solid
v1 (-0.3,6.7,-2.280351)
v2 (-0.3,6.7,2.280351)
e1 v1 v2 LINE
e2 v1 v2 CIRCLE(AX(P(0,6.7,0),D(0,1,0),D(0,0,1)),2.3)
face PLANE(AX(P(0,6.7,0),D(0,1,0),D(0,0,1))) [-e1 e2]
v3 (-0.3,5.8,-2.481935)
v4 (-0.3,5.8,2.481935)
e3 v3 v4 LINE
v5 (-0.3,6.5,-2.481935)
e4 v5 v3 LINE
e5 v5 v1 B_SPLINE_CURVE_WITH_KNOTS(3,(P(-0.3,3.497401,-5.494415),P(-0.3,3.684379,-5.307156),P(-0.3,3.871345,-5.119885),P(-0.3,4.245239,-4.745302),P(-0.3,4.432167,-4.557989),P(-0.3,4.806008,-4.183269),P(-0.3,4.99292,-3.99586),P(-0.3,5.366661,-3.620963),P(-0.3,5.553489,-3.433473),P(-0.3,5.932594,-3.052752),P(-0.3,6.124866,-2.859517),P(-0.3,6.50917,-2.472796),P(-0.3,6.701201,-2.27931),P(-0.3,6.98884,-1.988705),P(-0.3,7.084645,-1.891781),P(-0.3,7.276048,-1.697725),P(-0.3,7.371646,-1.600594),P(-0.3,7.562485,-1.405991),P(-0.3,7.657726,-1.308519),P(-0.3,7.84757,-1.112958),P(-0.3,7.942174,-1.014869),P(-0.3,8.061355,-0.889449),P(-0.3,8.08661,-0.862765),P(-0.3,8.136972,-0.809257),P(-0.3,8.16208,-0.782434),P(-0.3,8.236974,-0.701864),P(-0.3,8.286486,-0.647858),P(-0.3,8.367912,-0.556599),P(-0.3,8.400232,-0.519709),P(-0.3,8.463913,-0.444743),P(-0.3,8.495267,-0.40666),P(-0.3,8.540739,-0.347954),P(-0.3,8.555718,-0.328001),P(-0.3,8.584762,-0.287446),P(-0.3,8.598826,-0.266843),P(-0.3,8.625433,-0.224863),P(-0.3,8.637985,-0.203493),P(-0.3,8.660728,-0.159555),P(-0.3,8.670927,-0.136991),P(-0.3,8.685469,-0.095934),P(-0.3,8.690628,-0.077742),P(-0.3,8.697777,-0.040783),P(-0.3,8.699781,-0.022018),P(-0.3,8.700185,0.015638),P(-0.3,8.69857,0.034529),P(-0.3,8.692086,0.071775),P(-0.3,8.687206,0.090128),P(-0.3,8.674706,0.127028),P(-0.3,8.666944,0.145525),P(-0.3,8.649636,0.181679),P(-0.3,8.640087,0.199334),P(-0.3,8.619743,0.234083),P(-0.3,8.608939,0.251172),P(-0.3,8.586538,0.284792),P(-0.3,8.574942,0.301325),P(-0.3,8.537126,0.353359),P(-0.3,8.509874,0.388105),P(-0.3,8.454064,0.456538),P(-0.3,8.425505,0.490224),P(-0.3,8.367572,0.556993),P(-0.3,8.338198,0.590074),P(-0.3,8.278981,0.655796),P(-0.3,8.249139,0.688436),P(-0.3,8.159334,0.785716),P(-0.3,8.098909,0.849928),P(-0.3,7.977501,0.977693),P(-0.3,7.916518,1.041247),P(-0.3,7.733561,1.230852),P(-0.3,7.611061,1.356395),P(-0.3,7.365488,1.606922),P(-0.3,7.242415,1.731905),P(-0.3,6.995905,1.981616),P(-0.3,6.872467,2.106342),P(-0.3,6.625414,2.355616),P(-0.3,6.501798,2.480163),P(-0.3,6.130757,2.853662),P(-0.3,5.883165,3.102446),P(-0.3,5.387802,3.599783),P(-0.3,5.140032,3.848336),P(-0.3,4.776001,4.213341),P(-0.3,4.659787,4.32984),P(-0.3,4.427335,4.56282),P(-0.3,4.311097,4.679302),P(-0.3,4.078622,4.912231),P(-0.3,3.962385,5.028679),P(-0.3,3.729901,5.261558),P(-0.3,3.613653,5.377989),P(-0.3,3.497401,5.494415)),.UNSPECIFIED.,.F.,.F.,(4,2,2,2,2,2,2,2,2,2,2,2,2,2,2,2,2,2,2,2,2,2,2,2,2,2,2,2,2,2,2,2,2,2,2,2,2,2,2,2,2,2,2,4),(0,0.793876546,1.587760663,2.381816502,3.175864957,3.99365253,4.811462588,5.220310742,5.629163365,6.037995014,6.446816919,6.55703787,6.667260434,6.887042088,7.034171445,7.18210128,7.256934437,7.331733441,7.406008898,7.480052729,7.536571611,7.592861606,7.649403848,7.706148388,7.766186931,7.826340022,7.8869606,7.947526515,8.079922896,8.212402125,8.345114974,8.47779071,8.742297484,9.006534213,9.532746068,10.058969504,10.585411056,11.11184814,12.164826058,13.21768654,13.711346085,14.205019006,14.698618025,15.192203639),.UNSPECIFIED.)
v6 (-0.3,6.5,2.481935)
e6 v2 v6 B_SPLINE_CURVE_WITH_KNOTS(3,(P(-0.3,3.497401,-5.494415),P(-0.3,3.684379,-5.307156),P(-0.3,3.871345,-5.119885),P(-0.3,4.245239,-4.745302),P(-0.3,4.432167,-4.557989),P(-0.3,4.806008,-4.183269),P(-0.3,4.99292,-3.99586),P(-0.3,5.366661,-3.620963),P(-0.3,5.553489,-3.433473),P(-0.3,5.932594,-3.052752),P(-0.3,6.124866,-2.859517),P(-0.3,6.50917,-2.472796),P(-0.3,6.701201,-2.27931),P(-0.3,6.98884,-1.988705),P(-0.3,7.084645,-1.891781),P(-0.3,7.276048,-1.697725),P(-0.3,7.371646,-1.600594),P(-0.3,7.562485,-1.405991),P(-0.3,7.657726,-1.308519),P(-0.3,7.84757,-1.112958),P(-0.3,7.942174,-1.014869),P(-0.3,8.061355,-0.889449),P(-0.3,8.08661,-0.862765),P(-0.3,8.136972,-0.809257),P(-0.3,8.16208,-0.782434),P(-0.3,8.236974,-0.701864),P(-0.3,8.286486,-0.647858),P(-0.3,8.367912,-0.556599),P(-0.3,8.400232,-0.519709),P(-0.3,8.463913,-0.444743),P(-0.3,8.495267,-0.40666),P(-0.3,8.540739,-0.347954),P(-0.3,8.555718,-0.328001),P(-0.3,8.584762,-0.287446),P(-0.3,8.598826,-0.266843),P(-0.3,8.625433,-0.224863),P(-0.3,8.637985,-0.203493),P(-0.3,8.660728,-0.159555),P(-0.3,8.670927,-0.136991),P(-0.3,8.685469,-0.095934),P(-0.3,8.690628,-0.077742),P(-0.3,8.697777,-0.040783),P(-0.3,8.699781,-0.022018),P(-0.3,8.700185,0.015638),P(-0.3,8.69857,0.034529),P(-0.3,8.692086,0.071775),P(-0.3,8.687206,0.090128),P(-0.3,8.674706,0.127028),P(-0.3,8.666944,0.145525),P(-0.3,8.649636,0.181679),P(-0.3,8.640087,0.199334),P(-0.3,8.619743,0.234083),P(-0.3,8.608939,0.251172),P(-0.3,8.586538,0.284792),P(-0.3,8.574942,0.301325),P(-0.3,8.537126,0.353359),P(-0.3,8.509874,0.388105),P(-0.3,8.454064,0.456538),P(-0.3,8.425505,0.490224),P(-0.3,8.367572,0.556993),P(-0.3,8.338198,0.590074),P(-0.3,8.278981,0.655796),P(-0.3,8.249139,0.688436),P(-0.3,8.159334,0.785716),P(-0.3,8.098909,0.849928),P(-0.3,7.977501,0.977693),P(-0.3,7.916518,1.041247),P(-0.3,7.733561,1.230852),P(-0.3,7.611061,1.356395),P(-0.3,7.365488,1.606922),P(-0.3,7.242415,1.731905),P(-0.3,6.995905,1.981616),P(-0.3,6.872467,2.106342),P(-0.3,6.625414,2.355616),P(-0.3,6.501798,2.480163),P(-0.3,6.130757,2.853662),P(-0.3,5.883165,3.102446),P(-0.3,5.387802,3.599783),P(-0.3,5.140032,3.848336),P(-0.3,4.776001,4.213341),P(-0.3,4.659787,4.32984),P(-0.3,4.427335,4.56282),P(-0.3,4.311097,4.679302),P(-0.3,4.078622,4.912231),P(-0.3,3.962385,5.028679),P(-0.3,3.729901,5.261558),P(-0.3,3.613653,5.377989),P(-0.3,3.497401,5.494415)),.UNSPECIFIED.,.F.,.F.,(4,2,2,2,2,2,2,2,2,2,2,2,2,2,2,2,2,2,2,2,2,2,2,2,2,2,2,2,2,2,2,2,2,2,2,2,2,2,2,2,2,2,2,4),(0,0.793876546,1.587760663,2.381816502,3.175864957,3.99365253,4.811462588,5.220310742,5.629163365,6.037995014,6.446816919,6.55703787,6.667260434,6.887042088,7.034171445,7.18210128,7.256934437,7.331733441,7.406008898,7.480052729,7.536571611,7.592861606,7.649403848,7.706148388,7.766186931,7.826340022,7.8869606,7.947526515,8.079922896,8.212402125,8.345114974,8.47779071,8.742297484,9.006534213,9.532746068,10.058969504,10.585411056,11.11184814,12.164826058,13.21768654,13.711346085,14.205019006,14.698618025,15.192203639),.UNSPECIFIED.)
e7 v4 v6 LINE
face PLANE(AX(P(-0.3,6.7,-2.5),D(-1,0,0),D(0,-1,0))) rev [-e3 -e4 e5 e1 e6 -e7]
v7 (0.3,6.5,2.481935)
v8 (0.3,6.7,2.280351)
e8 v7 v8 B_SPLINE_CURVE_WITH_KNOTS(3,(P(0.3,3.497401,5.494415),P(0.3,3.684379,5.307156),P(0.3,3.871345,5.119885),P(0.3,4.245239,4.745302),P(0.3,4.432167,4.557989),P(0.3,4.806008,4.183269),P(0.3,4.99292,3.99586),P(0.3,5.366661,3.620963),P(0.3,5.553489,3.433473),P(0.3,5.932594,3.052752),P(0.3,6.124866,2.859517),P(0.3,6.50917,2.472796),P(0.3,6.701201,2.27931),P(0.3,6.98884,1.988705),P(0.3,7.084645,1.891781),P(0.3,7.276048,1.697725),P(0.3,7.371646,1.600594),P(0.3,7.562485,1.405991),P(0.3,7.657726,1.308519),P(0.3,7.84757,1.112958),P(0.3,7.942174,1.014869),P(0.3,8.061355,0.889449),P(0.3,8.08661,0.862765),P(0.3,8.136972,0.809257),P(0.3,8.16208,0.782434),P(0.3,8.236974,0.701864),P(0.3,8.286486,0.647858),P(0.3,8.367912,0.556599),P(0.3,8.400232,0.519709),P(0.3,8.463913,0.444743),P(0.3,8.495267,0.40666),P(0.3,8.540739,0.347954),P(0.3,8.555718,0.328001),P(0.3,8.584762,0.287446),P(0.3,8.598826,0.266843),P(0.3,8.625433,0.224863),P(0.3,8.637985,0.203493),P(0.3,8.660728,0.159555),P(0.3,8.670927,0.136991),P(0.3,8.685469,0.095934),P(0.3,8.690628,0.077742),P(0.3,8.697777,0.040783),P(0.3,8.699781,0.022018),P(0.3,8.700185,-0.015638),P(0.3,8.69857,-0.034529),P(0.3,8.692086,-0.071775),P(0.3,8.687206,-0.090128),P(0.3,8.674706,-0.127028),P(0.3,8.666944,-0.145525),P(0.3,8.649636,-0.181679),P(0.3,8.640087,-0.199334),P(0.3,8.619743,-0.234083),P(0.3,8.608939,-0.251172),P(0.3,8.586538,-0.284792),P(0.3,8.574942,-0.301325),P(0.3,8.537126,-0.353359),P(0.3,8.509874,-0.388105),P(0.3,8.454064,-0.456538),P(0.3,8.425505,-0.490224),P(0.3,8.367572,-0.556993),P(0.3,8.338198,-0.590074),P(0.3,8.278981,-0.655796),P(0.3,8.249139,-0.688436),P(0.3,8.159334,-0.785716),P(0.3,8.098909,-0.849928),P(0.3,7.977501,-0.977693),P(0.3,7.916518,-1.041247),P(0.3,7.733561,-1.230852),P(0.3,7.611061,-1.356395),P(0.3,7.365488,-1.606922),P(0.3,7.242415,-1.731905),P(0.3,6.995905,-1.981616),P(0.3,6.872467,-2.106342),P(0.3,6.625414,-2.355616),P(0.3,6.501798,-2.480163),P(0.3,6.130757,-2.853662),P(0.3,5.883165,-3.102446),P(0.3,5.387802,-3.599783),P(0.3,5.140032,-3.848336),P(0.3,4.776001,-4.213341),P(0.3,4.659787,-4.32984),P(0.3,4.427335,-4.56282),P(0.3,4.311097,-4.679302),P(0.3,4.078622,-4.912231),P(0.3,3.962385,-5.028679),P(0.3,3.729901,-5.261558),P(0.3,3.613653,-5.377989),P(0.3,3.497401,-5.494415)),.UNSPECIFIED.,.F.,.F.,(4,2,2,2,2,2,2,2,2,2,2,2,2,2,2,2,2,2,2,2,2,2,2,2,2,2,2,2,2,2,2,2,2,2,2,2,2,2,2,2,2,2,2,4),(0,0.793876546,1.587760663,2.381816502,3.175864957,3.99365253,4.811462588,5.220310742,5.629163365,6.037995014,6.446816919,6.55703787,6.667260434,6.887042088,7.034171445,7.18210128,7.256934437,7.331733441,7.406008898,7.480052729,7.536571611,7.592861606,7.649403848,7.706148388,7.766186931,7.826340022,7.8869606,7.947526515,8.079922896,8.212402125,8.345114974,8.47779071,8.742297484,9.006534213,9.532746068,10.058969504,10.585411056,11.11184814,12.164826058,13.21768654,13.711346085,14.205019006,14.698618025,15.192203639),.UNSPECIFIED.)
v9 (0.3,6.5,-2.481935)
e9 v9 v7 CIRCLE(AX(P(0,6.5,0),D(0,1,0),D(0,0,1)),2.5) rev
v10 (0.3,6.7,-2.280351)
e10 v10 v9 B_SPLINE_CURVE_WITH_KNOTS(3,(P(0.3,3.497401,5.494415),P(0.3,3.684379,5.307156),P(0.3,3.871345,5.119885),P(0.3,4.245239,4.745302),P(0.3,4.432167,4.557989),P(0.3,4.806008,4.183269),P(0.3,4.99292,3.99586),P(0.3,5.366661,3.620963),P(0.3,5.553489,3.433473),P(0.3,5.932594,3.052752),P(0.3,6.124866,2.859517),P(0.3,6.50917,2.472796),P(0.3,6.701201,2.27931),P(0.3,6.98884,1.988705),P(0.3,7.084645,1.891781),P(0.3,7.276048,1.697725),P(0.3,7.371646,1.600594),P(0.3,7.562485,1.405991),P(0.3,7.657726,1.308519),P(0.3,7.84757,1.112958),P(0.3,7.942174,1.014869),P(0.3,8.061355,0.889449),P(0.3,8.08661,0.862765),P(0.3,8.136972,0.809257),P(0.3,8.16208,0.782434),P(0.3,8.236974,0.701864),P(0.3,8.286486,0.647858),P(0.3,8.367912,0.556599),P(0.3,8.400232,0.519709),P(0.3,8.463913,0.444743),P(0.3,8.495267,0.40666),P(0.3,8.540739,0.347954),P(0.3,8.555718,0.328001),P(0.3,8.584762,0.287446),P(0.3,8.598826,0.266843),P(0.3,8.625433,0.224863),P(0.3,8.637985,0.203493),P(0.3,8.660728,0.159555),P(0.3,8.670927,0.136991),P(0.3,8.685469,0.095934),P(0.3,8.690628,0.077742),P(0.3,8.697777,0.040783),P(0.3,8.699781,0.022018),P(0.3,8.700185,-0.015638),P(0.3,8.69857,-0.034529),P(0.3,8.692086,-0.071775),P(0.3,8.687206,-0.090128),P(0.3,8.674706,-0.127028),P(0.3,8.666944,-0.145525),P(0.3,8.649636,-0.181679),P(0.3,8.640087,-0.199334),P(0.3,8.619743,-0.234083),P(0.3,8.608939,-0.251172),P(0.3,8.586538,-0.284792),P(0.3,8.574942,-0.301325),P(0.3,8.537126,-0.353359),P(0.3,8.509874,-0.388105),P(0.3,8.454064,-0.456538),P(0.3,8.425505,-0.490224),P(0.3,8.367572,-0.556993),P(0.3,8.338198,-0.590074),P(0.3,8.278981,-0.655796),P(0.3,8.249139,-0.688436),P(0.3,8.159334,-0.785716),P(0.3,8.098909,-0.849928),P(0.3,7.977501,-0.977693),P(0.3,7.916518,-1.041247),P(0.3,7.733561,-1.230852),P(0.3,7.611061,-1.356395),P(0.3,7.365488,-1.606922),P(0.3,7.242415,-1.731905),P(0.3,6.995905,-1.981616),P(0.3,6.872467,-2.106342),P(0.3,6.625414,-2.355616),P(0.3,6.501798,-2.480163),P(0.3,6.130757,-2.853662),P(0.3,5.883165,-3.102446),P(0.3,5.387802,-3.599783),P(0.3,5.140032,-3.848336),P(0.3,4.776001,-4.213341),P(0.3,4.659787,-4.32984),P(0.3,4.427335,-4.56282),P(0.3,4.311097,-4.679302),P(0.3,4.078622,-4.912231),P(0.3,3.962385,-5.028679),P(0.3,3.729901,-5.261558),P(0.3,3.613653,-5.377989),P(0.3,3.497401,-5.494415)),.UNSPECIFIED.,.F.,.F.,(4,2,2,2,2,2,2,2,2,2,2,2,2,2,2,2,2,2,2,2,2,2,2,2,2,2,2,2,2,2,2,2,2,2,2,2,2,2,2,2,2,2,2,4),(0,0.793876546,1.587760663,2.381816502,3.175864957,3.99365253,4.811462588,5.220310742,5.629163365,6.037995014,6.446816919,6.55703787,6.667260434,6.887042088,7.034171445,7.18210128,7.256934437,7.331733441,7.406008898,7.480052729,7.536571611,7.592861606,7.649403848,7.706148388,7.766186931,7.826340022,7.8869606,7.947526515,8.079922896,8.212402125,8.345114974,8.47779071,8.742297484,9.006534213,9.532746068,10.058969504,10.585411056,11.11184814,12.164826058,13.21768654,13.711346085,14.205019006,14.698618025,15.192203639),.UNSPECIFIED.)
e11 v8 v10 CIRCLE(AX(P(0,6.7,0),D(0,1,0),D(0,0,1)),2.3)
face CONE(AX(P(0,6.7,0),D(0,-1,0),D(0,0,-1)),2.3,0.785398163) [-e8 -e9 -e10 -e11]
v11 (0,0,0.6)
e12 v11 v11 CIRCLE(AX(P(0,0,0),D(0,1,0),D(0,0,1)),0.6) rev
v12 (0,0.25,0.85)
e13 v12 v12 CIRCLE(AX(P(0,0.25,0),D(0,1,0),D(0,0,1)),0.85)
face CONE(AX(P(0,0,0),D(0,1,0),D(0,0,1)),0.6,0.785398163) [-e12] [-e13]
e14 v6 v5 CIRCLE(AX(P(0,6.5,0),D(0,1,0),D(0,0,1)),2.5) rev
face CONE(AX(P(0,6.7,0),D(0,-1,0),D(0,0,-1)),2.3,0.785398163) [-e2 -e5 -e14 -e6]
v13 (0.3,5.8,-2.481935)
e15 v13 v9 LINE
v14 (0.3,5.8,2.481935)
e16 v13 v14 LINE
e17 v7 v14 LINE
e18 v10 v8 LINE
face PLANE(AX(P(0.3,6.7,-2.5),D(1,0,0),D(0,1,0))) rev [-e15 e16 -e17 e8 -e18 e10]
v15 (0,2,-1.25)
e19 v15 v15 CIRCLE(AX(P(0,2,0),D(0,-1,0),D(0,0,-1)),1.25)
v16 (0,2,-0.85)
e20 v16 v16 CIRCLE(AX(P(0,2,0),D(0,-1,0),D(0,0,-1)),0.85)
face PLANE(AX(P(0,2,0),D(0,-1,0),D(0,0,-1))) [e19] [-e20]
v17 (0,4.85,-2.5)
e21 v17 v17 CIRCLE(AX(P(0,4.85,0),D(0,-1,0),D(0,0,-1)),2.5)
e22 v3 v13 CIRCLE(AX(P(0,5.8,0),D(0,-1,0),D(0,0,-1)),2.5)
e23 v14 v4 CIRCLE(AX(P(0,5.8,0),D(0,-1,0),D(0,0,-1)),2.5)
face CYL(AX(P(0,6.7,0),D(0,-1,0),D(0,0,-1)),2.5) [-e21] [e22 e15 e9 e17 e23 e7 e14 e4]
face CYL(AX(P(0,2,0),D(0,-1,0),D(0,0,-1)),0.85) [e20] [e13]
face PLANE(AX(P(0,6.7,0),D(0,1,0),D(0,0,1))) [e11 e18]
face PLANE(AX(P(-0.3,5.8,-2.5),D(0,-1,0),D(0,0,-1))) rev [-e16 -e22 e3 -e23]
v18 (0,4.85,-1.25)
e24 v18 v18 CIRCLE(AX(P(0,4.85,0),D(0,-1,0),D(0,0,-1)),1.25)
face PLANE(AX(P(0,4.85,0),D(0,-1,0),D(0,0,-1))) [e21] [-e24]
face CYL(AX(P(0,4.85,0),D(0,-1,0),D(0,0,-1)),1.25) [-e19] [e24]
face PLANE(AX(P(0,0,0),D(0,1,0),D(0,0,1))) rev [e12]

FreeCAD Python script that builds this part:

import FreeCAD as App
import Part
import Sketcher

V = App.Vector


def edges_at(feature, points):
    """Names of the edges that pass closest to the given points."""
    edges = feature.Shape.Edges
    near = lambda p: min(range(len(edges)), key=lambda i: edges[i].distToShape(Part.Vertex(*p))[0])
    return sorted({f"Edge{near(p) + 1}" for p in points})

doc = App.newDocument("Part")
params = doc.addObject("Spreadsheet::Sheet", "Params")
for row, (alias, value) in enumerate([
    ("sketch1_diameter", "5 mm"),
    ("pad1_length", "6.7 mm"),
    ("sketch2_diameter", "1.7 mm"),
    ("pocket1_length", "2 mm"),
    ("sketch3_diameter", "2.5 mm"),
    ("pocket2_length", "2.85 mm"),
    ("chamfer_size", "0.2 mm"),
    ("sketch4_width", "0.6 mm"),
    ("sketch4_height", "0.9 mm"),
    ("chamfer2_size", "0.25 mm"),
], start=1):
    params.set(f"A{row}", alias)
    params.set(f"B{row}", "=" + value)
    params.setAlias(f"B{row}", alias)

body = doc.addObject("PartDesign::Body", "Body")

sketch1 = doc.addObject("Sketcher::SketchObject", "Sketch")
body.addObject(sketch1)
sketch1.AttachmentSupport = (doc.XZ_Plane, [""])
sketch1.MapMode = "FlatFace"
sketch1.addGeometry(Part.Circle(V(0, 0, 0), V(0, 0, 1), 2.5), False)
sketch1.addConstraint([
    Sketcher.Constraint("Coincident", 0, 3, -1, 1),
    Sketcher.Constraint("Diameter", 0, 5.0),
])
sketch1.setExpression("Constraints[1]", "Params.sketch1_diameter")
pad1 = doc.addObject("PartDesign::Pad", "Pad")
body.addObject(pad1)
pad1.Profile = sketch1
pad1.setExpression("Length", "Params.pad1_length")
pad1.Reversed = True

sketch2 = doc.addObject("Sketcher::SketchObject", "Sketch001")
body.addObject(sketch2)
sketch2.AttachmentSupport = (doc.XZ_Plane, [""])
sketch2.MapMode = "FlatFace"
sketch2.addGeometry([
    Part.LineSegment(V(-4.5, 4.5, 0), V(-4.5, -4.5, 0)),
    Part.LineSegment(V(-4.5, -4.5, 0), V(4.5, -4.5, 0)),
    Part.LineSegment(V(4.5, -4.5, 0), V(4.5, 4.5, 0)),
    Part.LineSegment(V(4.5, 4.5, 0), V(-4.5, 4.5, 0)),
    Part.Circle(V(0, 0, 0), V(0, 0, 1), 0.8),
], False)
sketch2.addConstraint([
    Sketcher.Constraint("Coincident", 0, 2, 1, 1),
    Sketcher.Constraint("Coincident", 1, 2, 2, 1),
    Sketcher.Constraint("Coincident", 2, 2, 3, 1),
    Sketcher.Constraint("Coincident", 3, 2, 0, 1),
    Sketcher.Constraint("Vertical", 0),
    Sketcher.Constraint("Horizontal", 1),
    Sketcher.Constraint("Vertical", 2),
    Sketcher.Constraint("Horizontal", 3),
    Sketcher.Constraint("Coincident", 4, 3, -1, 1),
    Sketcher.Constraint("Symmetric", 0, 2, 2, 2, -1, 1),
    Sketcher.Constraint("Equal", 3, 0),
    Sketcher.Constraint("Diameter", 4, 1.7),
    Sketcher.Constraint("DistanceX", 1, 1, 1, 2, 8.948),
])
sketch2.setExpression("Constraints[11]", "Params.sketch2_diameter")
pocket1 = doc.addObject("PartDesign::Pocket", "Pocket")
body.addObject(pocket1)
pocket1.Profile = sketch2
pocket1.setExpression("Length", "Params.pocket1_length")

sketch3 = doc.addObject("Sketcher::SketchObject", "Sketch002")
body.addObject(sketch3)
sketch3.AttachmentSupport = (doc.XZ_Plane, [""])
sketch3.MapMode = "FlatFace"
sketch3.AttachmentOffset = App.Placement(V(0, 0, -2), App.Rotation())
sketch3.addGeometry([
    Part.LineSegment(V(-4.5, 4.5, 0), V(-4.5, -4.5, 0)),
    Part.LineSegment(V(-4.5, -4.5, 0), V(4.5, -4.5, 0)),
    Part.LineSegment(V(4.5, -4.5, 0), V(4.5, 4.5, 0)),
    Part.LineSegment(V(4.5, 4.5, 0), V(-4.5, 4.5, 0)),
    Part.Circle(V(0, 0, 0), V(0, 0, 1), 1.2),
], False)
sketch3.addConstraint([
    Sketcher.Constraint("Coincident", 0, 2, 1, 1),
    Sketcher.Constraint("Coincident", 1, 2, 2, 1),
    Sketcher.Constraint("Coincident", 2, 2, 3, 1),
    Sketcher.Constraint("Coincident", 3, 2, 0, 1),
    Sketcher.Constraint("Vertical", 0),
    Sketcher.Constraint("Horizontal", 1),
    Sketcher.Constraint("Vertical", 2),
    Sketcher.Constraint("Horizontal", 3),
    Sketcher.Constraint("Coincident", 4, 3, -1, 1),
    Sketcher.Constraint("Symmetric", 0, 2, 2, 2, -1, 1),
    Sketcher.Constraint("Equal", 3, 0),
    Sketcher.Constraint("Diameter", 4, 2.5),
    Sketcher.Constraint("DistanceX", 1, 1, 1, 2, 8.948),
])
sketch3.setExpression("Constraints[11]", "Params.sketch3_diameter")
pocket2 = doc.addObject("PartDesign::Pocket", "Pocket001")
body.addObject(pocket2)
pocket2.Profile = sketch3
pocket2.setExpression("Length", "Params.pocket2_length")
doc.recompute()

chamfer = doc.addObject("PartDesign::Chamfer", "Chamfer")
body.addObject(chamfer)
chamfer.Base = (pocket2, edges_at(pocket2, [(0, 6.7, -2.5)]))
chamfer.setExpression("Size", "Params.chamfer_size")

sketch4 = doc.addObject("Sketcher::SketchObject", "Sketch003")
body.addObject(sketch4)
sketch4.AttachmentSupport = (doc.XY_Plane, [""])
sketch4.MapMode = "FlatFace"
sketch4.addGeometry([
    Part.LineSegment(V(-0.3, 6.7, 0), V(-0.3, 5.8, 0)),
    Part.LineSegment(V(-0.3, 5.8, 0), V(0.3, 5.8, 0)),
    Part.LineSegment(V(0.3, 5.8, 0), V(0.3, 6.7, 0)),
    Part.LineSegment(V(0.3, 6.7, 0), V(-0.3, 6.7, 0)),
], False)
sketch4.addConstraint([
    Sketcher.Constraint("Coincident", 0, 2, 1, 1),
    Sketcher.Constraint("Coincident", 1, 2, 2, 1),
    Sketcher.Constraint("Coincident", 2, 2, 3, 1),
    Sketcher.Constraint("Coincident", 3, 2, 0, 1),
    Sketcher.Constraint("Vertical", 0),
    Sketcher.Constraint("Horizontal", 1),
    Sketcher.Constraint("Vertical", 2),
    Sketcher.Constraint("Horizontal", 3),
    Sketcher.Constraint("DistanceX", 1, 1, 1, 2, 0.6),
    Sketcher.Constraint("DistanceY", 0, 2, 0, 1, 0.9),
    Sketcher.Constraint("DistanceX", 0, 2, -1, 1, 0.3),
    Sketcher.Constraint("DistanceY", -1, 1, 0, 2, 5.8),
])
sketch4.setExpression("Constraints[8]", "Params.sketch4_width")
sketch4.setExpression("Constraints[9]", "Params.sketch4_height")
pocket3 = doc.addObject("PartDesign::Pocket", "Pocket002")
body.addObject(pocket3)
pocket3.Profile = sketch4
pocket3.Type = "ThroughAll"
pocket3.Midplane = True
doc.recompute()

chamfer2 = doc.addObject("PartDesign::Chamfer", "Chamfer001")
body.addObject(chamfer2)
chamfer2.Base = (pocket3, edges_at(pocket3, [(0, 0, 0.85)]))
chamfer2.setExpression("Size", "Params.chamfer2_size")

doc.recompute()
